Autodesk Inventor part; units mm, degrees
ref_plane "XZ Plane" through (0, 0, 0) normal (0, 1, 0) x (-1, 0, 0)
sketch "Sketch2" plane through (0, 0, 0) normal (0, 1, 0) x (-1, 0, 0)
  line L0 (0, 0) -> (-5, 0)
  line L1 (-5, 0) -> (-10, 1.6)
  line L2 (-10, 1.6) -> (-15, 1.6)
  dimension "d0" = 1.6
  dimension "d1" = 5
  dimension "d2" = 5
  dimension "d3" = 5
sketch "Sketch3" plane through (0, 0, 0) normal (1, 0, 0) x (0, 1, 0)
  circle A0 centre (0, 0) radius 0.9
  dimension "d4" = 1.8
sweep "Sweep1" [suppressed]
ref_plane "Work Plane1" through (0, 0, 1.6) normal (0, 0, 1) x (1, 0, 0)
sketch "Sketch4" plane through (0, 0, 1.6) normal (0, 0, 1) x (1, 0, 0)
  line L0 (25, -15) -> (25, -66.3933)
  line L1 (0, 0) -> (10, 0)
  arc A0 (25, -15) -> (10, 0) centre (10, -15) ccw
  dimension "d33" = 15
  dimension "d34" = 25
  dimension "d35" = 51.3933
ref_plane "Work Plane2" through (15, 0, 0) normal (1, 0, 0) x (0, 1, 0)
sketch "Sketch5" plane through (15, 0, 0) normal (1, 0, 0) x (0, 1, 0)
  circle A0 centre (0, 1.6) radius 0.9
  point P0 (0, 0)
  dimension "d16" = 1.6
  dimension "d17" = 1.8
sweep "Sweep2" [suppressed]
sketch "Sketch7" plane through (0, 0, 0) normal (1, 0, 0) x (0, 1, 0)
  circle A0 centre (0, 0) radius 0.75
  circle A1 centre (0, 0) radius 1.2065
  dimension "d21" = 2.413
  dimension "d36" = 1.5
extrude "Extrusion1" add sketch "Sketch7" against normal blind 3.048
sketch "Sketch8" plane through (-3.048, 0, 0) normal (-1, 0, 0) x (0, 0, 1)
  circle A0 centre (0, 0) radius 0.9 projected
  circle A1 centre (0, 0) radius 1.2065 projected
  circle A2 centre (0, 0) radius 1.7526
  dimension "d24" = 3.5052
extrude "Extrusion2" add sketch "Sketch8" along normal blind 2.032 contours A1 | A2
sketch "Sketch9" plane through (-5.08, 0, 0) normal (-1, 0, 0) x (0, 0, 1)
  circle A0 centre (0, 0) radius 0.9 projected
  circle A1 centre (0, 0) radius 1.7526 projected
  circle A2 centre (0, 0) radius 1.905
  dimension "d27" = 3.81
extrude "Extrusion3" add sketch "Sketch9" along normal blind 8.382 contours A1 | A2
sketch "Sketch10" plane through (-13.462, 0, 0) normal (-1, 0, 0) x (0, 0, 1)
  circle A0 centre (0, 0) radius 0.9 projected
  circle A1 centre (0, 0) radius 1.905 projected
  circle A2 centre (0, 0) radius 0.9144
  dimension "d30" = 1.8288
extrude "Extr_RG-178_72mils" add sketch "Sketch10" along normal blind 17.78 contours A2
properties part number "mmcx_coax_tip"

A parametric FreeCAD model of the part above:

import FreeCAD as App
import Part
import Sketcher

V = App.Vector
Q = App.Units.Quantity

doc = App.newDocument("Part")
body = doc.addObject("PartDesign::Body", "Body")

sketch1 = body.newObject("Sketcher::SketchObject", "Sketch")
sketch1.AttachmentSupport = (doc.getObject("YZ_Plane"), [""])
sketch1.MapMode = "FlatFace"
sketch1.addGeometry([
    Part.Circle(V(0, 0, 0), V(0, 0, 1), 1.2),
    Part.Circle(V(0, 0, 0), V(0, 0, 1), 0.8),
], False)
sketch1.addConstraint([
    Sketcher.Constraint("Coincident", 0, 3, -1, 1),
    Sketcher.Constraint("Coincident", 1, 3, -1, 1),
    Sketcher.Constraint("Diameter", 0, Q("0.095 in")),
    Sketcher.Constraint("Diameter", 1, Q("1.5 mm")),
])
pad1 = body.newObject("PartDesign::Pad", "Pad")
pad1.Profile = sketch1
pad1.Length = Q("0.12 in")
pad1.Reversed = True

sketch2 = body.newObject("Sketcher::SketchObject", "Sketch001")
sketch2.AttachmentSupport = (doc.getObject("YZ_Plane"), [""])
sketch2.MapMode = "FlatFace"
sketch2.AttachmentOffset = App.Placement(V(0, 0, -0.12 * 25.4), App.Rotation())
sketch2.addGeometry([
    Part.Circle(V(0, 0, 0), V(0, 0, 1), 1.8),
    Part.Circle(V(0, 0, 0), V(0, 0, 1), 0.9),
], False)
sketch2.addConstraint([
    Sketcher.Constraint("Coincident", 0, 3, -1, 1),
    Sketcher.Constraint("Coincident", 1, 3, -1, 1),
    Sketcher.Constraint("Diameter", 0, Q("0.138 in")),
    Sketcher.Constraint("Diameter", 1, Q("1.8 mm")),
])
pad2 = body.newObject("PartDesign::Pad", "Pad001")
pad2.Profile = sketch2
pad2.Length = Q("0.08 in")
pad2.Reversed = True

sketch3 = body.newObject("Sketcher::SketchObject", "Sketch002")
sketch3.AttachmentSupport = (doc.getObject("YZ_Plane"), [""])
sketch3.MapMode = "FlatFace"
sketch3.AttachmentOffset = App.Placement(V(0, 0, -0.2 * 25.4), App.Rotation())
sketch3.addGeometry([
    Part.Circle(V(0, 0, 0), V(0, 0, 1), 1.9),
    Part.Circle(V(0, 0, 0), V(0, 0, 1), 0.9),
], False)
sketch3.addConstraint([
    Sketcher.Constraint("Coincident", 0, 3, -1, 1),
    Sketcher.Constraint("Coincident", 1, 3, -1, 1),
    Sketcher.Constraint("Diameter", 0, Q("0.15 in")),
    Sketcher.Constraint("Diameter", 1, Q("1.8 mm")),
])
pad3 = body.newObject("PartDesign::Pad", "Pad002")
pad3.Profile = sketch3
pad3.Length = Q("0.33 in")
pad3.Reversed = True

sketch4 = body.newObject("Sketcher::SketchObject", "Sketch003")
sketch4.AttachmentSupport = (doc.getObject("YZ_Plane"), [""])
sketch4.MapMode = "FlatFace"
sketch4.AttachmentOffset = App.Placement(V(0, 0, -0.53 * 25.4), App.Rotation())
sketch4.addGeometry([
    Part.Circle(V(0, 0, 0), V(0, 0, 1), 0.9),
    Part.Circle(V(0, 0, 0), V(0, 0, 1), 0.9),
], False)
sketch4.addConstraint([
    Sketcher.Constraint("Coincident", 0, 3, -1, 1),
    Sketcher.Constraint("Coincident", 1, 3, -1, 1),
    Sketcher.Constraint("Diameter", 0, Q("0.072 in")),
    Sketcher.Constraint("Diameter", 1, Q("1.8 mm")),
])
pad4 = body.newObject("PartDesign::Pad", "Pad003")
pad4.Profile = sketch4
pad4.Length = Q("0.7 in")
pad4.Reversed = True

doc.recompute()
